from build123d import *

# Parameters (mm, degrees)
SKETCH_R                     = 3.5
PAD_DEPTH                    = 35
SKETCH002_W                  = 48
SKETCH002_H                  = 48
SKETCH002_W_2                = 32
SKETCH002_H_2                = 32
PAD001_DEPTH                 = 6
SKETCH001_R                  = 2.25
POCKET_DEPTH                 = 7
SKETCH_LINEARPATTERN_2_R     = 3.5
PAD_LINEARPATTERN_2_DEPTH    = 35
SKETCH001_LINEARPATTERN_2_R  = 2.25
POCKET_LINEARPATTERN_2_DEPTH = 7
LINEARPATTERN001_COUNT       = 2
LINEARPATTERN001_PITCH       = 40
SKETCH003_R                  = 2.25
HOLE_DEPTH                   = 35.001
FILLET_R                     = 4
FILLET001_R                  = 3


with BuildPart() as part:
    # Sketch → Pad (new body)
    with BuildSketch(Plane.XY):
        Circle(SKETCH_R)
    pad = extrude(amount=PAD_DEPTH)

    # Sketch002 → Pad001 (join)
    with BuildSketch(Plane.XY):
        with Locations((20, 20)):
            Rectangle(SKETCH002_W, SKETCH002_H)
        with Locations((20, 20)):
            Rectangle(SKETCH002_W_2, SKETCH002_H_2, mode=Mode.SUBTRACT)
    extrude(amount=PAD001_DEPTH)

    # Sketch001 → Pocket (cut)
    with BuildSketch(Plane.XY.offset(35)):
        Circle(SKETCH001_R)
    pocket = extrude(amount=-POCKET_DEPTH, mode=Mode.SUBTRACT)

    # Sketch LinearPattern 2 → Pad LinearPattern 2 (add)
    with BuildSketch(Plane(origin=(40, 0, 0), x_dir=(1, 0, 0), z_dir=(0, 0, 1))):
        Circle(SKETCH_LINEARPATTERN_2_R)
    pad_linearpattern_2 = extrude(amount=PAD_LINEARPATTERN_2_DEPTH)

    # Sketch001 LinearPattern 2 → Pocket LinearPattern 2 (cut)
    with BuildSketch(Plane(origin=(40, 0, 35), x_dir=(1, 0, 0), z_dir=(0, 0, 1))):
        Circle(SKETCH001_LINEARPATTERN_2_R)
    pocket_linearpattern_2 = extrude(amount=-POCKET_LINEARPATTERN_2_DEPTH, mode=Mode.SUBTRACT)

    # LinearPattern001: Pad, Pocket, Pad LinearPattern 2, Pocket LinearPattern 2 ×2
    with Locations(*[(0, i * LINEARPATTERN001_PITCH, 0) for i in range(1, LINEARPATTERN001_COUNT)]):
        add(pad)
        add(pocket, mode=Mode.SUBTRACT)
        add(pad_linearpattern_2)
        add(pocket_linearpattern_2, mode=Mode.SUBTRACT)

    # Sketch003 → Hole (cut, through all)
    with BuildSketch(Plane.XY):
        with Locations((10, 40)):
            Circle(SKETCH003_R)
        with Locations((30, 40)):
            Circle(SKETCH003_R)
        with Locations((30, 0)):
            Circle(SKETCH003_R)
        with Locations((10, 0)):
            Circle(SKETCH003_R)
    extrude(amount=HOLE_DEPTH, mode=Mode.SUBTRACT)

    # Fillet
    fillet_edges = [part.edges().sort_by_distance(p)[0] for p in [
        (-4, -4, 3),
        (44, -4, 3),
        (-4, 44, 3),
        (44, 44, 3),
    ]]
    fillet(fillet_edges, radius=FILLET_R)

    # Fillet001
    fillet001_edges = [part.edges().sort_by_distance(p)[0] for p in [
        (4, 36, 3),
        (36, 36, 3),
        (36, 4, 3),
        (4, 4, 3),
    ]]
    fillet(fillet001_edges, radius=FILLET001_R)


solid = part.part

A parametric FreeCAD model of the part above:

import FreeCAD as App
import Part
import Sketcher
from FreeCAD import Vector
Q = App.Units.Quantity


def edges_at(feature, points):
    """Names of the edges that pass closest to the given points."""
    edges = feature.Shape.Edges
    near = lambda p: min(range(len(edges)), key=lambda i: edges[i].distToShape(Part.Vertex(*p))[0])
    return sorted({f"Edge{near(p) + 1}" for p in points})


def add_polygon(sketch, points):
    """Adds a closed chain of lines whose ends are joined by coincident constraints."""
    first, n = sketch.GeometryCount, len(points)
    for a, b in zip(points, points[1:] + points[:1]):
        sketch.addGeometry(Part.LineSegment(App.Vector(*a, 0), App.Vector(*b, 0)), False)
    for i in range(n):
        sketch.addConstraint(Sketcher.Constraint("Coincident", first + i, 2, first + (i + 1) % n, 1))

doc = App.newDocument("Part")
body = doc.addObject("PartDesign::Body", "Body")

# Sketch on XY plane
sketch1 = body.newObject("Sketcher::SketchObject", "Sketch")
sketch1.AttachmentSupport = (doc.getObject("XY_Plane"), [""])
sketch1.MapMode = "FlatFace"
sketch1.addGeometry(Part.Circle(Vector(0, 0, 0), Vector(0, 0, 1), 3.5), False)
sketch1.addConstraint(Sketcher.Constraint("Coincident", 0, 3, -1, 1))
sketch1.addConstraint(Sketcher.Constraint("Diameter", 0, Q("7 mm")))
pad1 = body.newObject("PartDesign::Pad", "Pad")
pad1.Profile = sketch1
pad1.Length = 35

# Sketch on XY plane
sketch2 = body.newObject("Sketcher::SketchObject", "Sketch001")
sketch2.AttachmentSupport = (doc.getObject("XY_Plane"), [""])
sketch2.MapMode = "FlatFace"
add_polygon(sketch2, [(-4, 44), (-4, -4), (44, -4), (44, 44)])  # lines 0-3
add_polygon(sketch2, [(36, 4), (4, 4), (4, 36), (36, 36)])  # lines 4-7
sketch2.addConstraint(Sketcher.Constraint("Vertical", 0))
sketch2.addConstraint(Sketcher.Constraint("Horizontal", 1))
sketch2.addConstraint(Sketcher.Constraint("Vertical", 2))
sketch2.addConstraint(Sketcher.Constraint("Horizontal", 3))
sketch2.addConstraint(Sketcher.Constraint("Horizontal", 4))
sketch2.addConstraint(Sketcher.Constraint("Vertical", 5))
sketch2.addConstraint(Sketcher.Constraint("Horizontal", 6))
sketch2.addConstraint(Sketcher.Constraint("Vertical", 7))
sketch2.addConstraint(Sketcher.Constraint("Symmetric", 0, 2, 4, 2, -1, 1))
sketch2.addConstraint(Sketcher.Constraint("Equal", 3, 0))
sketch2.addConstraint(Sketcher.Constraint("Equal", 6, 5))
sketch2.addConstraint(Sketcher.Constraint("DistanceX", 1, 1, 1, 2, Q("48 mm")))
sketch2.addConstraint(Sketcher.Constraint("DistanceX", 4, 2, 4, 1, Q("32 mm")))
sketch2.addConstraint(Sketcher.Constraint("DistanceX", 0, 2, -1, 1, Q("4 mm")))
sketch2.addConstraint(Sketcher.Constraint("DistanceY", 0, 2, -1, 1, Q("4 mm")))
pad2 = body.newObject("PartDesign::Pad", "Pad001")
pad2.Profile = sketch2
pad2.Length = 6

# Sketch on XY plane
sketch3 = body.newObject("Sketcher::SketchObject", "Sketch002")
sketch3.AttachmentSupport = (doc.getObject("XY_Plane"), [""])
sketch3.MapMode = "FlatFace"
sketch3.AttachmentOffset = App.Placement(Vector(0, 0, 35), App.Rotation())
sketch3.addGeometry(Part.Circle(Vector(0, 0, 0), Vector(0, 0, 1), 2.2), False)
sketch3.addConstraint(Sketcher.Constraint("Coincident", 0, 3, -1, 1))
sketch3.addConstraint(Sketcher.Constraint("Diameter", 0, Q("4.5 mm")))
pocket1 = body.newObject("PartDesign::Pocket", "Pocket")
pocket1.Profile = sketch3
pocket1.Length = 7

# Sketch on XY plane
sketch4 = body.newObject("Sketcher::SketchObject", "Sketch003")
sketch4.AttachmentSupport = (doc.getObject("XY_Plane"), [""])
sketch4.MapMode = "FlatFace"
sketch4.addGeometry(Part.Circle(Vector(40, 0, 0), Vector(0, 0, 1), 3.5), False)
sketch4.addConstraint(Sketcher.Constraint("PointOnObject", 0, 3, -1))
sketch4.addConstraint(Sketcher.Constraint("Diameter", 0, Q("7 mm")))
sketch4.addConstraint(Sketcher.Constraint("DistanceX", -1, 1, 0, 3, Q("40 mm")))
pad3 = body.newObject("PartDesign::Pad", "Pad002")
pad3.Profile = sketch4
pad3.Length = 35

# Sketch on XY plane
sketch5 = body.newObject("Sketcher::SketchObject", "Sketch004")
sketch5.AttachmentSupport = (doc.getObject("XY_Plane"), [""])
sketch5.MapMode = "FlatFace"
sketch5.AttachmentOffset = App.Placement(Vector(0, 0, 35), App.Rotation())
sketch5.addGeometry(Part.Circle(Vector(40, 0, 0), Vector(0, 0, 1), 2.2), False)
sketch5.addConstraint(Sketcher.Constraint("PointOnObject", 0, 3, -1))
sketch5.addConstraint(Sketcher.Constraint("Diameter", 0, Q("4.5 mm")))
sketch5.addConstraint(Sketcher.Constraint("DistanceX", -1, 1, 0, 3, Q("40 mm")))
pocket2 = body.newObject("PartDesign::Pocket", "Pocket001")
pocket2.Profile = sketch5
pocket2.Length = 7
doc.recompute()

linearpattern = body.newObject("PartDesign::LinearPattern", "LinearPattern")
linearpattern.Originals = [pad1, pocket1, pad3, pocket2]
linearpattern.Direction = (doc.getObject("Y_Axis"), [""])
linearpattern.Mode = "offset"
linearpattern.Offset = 40
linearpattern.Occurrences = 2
body.Tip = linearpattern

# Sketch on XY plane
sketch6 = body.newObject("Sketcher::SketchObject", "Sketch005")
sketch6.AttachmentSupport = (doc.getObject("XY_Plane"), [""])
sketch6.MapMode = "FlatFace"
sketch6.addGeometry(Part.Circle(Vector(10, 40, 0), Vector(0, 0, 1), 2.2), False)
sketch6.addGeometry(Part.Circle(Vector(30, 40, 0), Vector(0, 0, 1), 2.2), False)
sketch6.addGeometry(Part.Circle(Vector(30, 0, 0), Vector(0, 0, 1), 2.2), False)
sketch6.addGeometry(Part.Circle(Vector(10, 0, 0), Vector(0, 0, 1), 2.2), False)
sketch6.addConstraint(Sketcher.Constraint("Equal", 0, 1))
sketch6.addConstraint(Sketcher.Constraint("Equal", 1, 2))
sketch6.addConstraint(Sketcher.Constraint("Equal", 2, 3))
sketch6.addConstraint(Sketcher.Constraint("PointOnObject", 2, 3, -1))
sketch6.addConstraint(Sketcher.Constraint("PointOnObject", 3, 3, -1))
sketch6.addConstraint(Sketcher.Constraint("Horizontal", 0, 3, 1, 3))
sketch6.addConstraint(Sketcher.Constraint("Vertical", 1, 3, 2, 3))
sketch6.addConstraint(Sketcher.Constraint("Vertical", 0, 3, 3, 3))
sketch6.addConstraint(Sketcher.Constraint("Diameter", 0, Q("4.5 mm")))
sketch6.addConstraint(Sketcher.Constraint("DistanceX", -1, 1, 0, 3, Q("10 mm")))
sketch6.addConstraint(Sketcher.Constraint("DistanceY", -1, 1, 0, 3, Q("40 mm")))
sketch6.addConstraint(Sketcher.Constraint("DistanceX", -1, 1, 1, 3, Q("30 mm")))
pocket3 = body.newObject("PartDesign::Pocket", "Pocket002")
pocket3.Profile = sketch6
pocket3.Type = "ThroughAll"
pocket3.Reversed = True
doc.recompute()

fillet = body.newObject("PartDesign::Fillet", "Fillet")
fillet.Base = (pocket3, edges_at(pocket3, [
    (-4, -4, 3),
    (44, -4, 3),
    (-4, 44, 3),
    (44, 44, 3),
]))
fillet.Radius = 4
doc.recompute()

fillet2 = body.newObject("PartDesign::Fillet", "Fillet001")
fillet2.Base = (fillet, edges_at(fillet, [
    (4, 36, 3),
    (36, 36, 3),
    (36, 4, 3),
    (4, 4, 3),
]))
fillet2.Radius = 3

doc.recompute()
